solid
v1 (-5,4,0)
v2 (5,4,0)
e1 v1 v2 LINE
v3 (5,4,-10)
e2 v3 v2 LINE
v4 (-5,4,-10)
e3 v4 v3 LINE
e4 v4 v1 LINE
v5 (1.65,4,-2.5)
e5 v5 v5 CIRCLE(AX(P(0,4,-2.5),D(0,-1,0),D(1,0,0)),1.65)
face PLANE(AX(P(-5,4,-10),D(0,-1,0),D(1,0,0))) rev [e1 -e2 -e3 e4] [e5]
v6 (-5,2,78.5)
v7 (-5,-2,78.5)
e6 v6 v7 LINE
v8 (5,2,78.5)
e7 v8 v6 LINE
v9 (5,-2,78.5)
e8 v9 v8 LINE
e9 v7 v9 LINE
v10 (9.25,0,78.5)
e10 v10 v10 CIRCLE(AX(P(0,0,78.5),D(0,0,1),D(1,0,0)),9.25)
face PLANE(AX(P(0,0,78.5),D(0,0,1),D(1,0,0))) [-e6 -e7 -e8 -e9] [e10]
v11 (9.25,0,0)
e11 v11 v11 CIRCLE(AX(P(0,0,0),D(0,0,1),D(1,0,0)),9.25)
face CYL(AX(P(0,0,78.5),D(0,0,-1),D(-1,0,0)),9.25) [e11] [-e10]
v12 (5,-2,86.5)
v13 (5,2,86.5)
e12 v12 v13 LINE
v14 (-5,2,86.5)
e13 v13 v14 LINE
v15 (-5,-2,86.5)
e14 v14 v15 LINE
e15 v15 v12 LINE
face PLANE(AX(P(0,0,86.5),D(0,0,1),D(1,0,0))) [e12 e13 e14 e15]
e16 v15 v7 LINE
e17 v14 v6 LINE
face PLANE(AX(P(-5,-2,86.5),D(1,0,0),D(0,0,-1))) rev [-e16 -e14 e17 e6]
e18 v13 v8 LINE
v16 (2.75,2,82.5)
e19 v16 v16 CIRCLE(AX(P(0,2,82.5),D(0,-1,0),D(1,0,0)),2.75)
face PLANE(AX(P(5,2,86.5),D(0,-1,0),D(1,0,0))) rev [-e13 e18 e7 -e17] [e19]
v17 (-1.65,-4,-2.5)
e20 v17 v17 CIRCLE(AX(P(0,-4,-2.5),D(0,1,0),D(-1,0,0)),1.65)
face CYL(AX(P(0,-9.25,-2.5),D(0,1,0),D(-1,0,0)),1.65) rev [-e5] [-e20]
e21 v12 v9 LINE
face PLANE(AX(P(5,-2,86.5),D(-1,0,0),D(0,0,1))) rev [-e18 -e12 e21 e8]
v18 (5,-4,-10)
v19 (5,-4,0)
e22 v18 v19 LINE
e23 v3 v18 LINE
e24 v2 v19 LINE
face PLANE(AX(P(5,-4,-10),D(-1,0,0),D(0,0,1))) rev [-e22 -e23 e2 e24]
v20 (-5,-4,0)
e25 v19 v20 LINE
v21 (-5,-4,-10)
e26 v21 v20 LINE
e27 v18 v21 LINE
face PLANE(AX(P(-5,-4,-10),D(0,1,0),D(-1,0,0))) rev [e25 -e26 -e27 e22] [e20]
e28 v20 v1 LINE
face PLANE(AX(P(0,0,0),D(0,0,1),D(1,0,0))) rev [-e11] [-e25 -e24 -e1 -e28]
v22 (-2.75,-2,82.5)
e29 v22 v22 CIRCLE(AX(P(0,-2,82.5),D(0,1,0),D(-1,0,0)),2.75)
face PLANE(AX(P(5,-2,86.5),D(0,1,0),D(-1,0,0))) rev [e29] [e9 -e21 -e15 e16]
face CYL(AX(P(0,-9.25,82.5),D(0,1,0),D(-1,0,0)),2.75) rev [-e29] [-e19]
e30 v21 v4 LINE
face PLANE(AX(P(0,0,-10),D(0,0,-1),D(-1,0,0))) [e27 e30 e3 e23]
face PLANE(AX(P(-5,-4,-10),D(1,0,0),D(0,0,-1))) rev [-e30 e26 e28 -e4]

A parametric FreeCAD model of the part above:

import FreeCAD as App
import Part
import Sketcher
from FreeCAD import Vector
Q = App.Units.Quantity

doc = App.newDocument("Part")
body = doc.addObject("PartDesign::Body", "Body")

# Sketch on XY plane
sketch1 = body.newObject("Sketcher::SketchObject", "Sketch")
sketch1.AttachmentSupport = (doc.getObject("XY_Plane"), [""])
sketch1.MapMode = "FlatFace"
sketch1.addGeometry(Part.Circle(Vector(0, 0, 0), Vector(0, 0, 1), 9), False)
sketch1.addConstraint(Sketcher.Constraint("Coincident", 0, 3, -1, 1))
sketch1.addConstraint(Sketcher.Constraint("Diameter", 0, Q("18.5 mm")))
pad1 = body.newObject("PartDesign::Pad", "Pad")
pad1.Profile = sketch1
pad1.Length = 78.5

# Sketch on XY plane
sketch2 = body.newObject("Sketcher::SketchObject", "Sketch001")
sketch2.AttachmentSupport = (doc.getObject("XY_Plane"), [""])
sketch2.MapMode = "FlatFace"
sketch2.addGeometry(Part.LineSegment(Vector(5, 4, 0), Vector(5, -4, 0)), False)
sketch2.addGeometry(Part.LineSegment(Vector(5, -4, 0), Vector(-5, -4, 0)), False)
sketch2.addGeometry(Part.LineSegment(Vector(-5, -4, 0), Vector(-5, 4, 0)), False)
sketch2.addGeometry(Part.LineSegment(Vector(-5, 4, 0), Vector(5, 4, 0)), False)
sketch2.addConstraint(Sketcher.Constraint("Coincident", 0, 2, 1, 1))
sketch2.addConstraint(Sketcher.Constraint("Coincident", 1, 2, 2, 1))
sketch2.addConstraint(Sketcher.Constraint("Coincident", 2, 2, 3, 1))
sketch2.addConstraint(Sketcher.Constraint("Coincident", 3, 2, 0, 1))
sketch2.addConstraint(Sketcher.Constraint("Vertical", 0))
sketch2.addConstraint(Sketcher.Constraint("Horizontal", 1))
sketch2.addConstraint(Sketcher.Constraint("Vertical", 2))
sketch2.addConstraint(Sketcher.Constraint("Horizontal", 3))
sketch2.addConstraint(Sketcher.Constraint("Symmetric", 0, 2, 2, 2, -1, 1))
sketch2.addConstraint(Sketcher.Constraint("DistanceX", 1, 2, 1, 1, Q("10 mm")))
sketch2.addConstraint(Sketcher.Constraint("DistanceY", 0, 2, 0, 1, Q("8 mm")))
pad2 = body.newObject("PartDesign::Pad", "Pad001")
pad2.Profile = sketch2
pad2.Length = 10
pad2.Reversed = True

# Sketch on XY plane
sketch3 = body.newObject("Sketcher::SketchObject", "Sketch002")
sketch3.AttachmentSupport = (doc.getObject("XY_Plane"), [""])
sketch3.MapMode = "FlatFace"
sketch3.AttachmentOffset = App.Placement(Vector(0, 0, 78.5), App.Rotation())
sketch3.addGeometry(Part.LineSegment(Vector(-5, 2, 0), Vector(-5, -2, 0)), False)
sketch3.addGeometry(Part.LineSegment(Vector(-5, -2, 0), Vector(5, -2, 0)), False)
sketch3.addGeometry(Part.LineSegment(Vector(5, -2, 0), Vector(5, 2, 0)), False)
sketch3.addGeometry(Part.LineSegment(Vector(5, 2, 0), Vector(-5, 2, 0)), False)
sketch3.addConstraint(Sketcher.Constraint("Coincident", 0, 2, 1, 1))
sketch3.addConstraint(Sketcher.Constraint("Coincident", 1, 2, 2, 1))
sketch3.addConstraint(Sketcher.Constraint("Coincident", 2, 2, 3, 1))
sketch3.addConstraint(Sketcher.Constraint("Coincident", 3, 2, 0, 1))
sketch3.addConstraint(Sketcher.Constraint("Vertical", 0))
sketch3.addConstraint(Sketcher.Constraint("Horizontal", 1))
sketch3.addConstraint(Sketcher.Constraint("Vertical", 2))
sketch3.addConstraint(Sketcher.Constraint("Horizontal", 3))
sketch3.addConstraint(Sketcher.Constraint("Symmetric", 0, 2, 2, 2, -1, 1))
sketch3.addConstraint(Sketcher.Constraint("DistanceX", 1, 1, 1, 2, Q("10 mm")))
sketch3.addConstraint(Sketcher.Constraint("DistanceY", 0, 2, 0, 1, Q("4 mm")))
pad3 = body.newObject("PartDesign::Pad", "Pad002")
pad3.Profile = sketch3
pad3.Length = 8

# Sketch on XZ plane
sketch4 = body.newObject("Sketcher::SketchObject", "Sketch003")
sketch4.AttachmentSupport = (doc.getObject("XZ_Plane"), [""])
sketch4.MapMode = "FlatFace"
sketch4.AttachmentOffset = App.Placement(Vector(0, 0, -4), App.Rotation())
sketch4.addGeometry(Part.Circle(Vector(0, -2.5, 0), Vector(0, 0, 1), 1.6), False)
sketch4.addGeometry(Part.Circle(Vector(0, 82.5, 0), Vector(0, 0, 1), 2.8), False)
sketch4.addConstraint(Sketcher.Constraint("PointOnObject", 0, 3, -2))
sketch4.addConstraint(Sketcher.Constraint("PointOnObject", 1, 3, -2))
sketch4.addConstraint(Sketcher.Constraint("Diameter", 0, Q("3.3 mm")))
sketch4.addConstraint(Sketcher.Constraint("Diameter", 1, Q("5.5 mm")))
sketch4.addConstraint(Sketcher.Constraint("DistanceY", 0, 3, 1, 3, Q("85 mm")))
sketch4.addConstraint(Sketcher.Constraint("DistanceY", 0, 3, -1, 1, Q("2.5 mm")))
pocket1 = body.newObject("PartDesign::Pocket", "Pocket")
pocket1.Profile = sketch4
pocket1.Type = "ThroughAll"
pocket1.Midplane = True

doc.recompute()
